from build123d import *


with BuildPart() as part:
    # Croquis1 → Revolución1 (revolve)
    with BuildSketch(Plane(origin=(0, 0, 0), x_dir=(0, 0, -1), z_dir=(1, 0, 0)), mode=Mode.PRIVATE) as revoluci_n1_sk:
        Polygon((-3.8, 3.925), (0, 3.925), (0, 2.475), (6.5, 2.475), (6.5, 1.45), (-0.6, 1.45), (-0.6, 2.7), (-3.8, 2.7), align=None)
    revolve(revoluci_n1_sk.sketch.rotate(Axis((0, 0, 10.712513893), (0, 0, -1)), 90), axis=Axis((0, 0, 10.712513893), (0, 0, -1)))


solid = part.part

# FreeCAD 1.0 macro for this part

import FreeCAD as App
import Part
import Sketcher
from FreeCAD import Vector


def add_polygon(sketch, points):
    """Adds a closed chain of lines whose ends are joined by coincident constraints."""
    first, n = sketch.GeometryCount, len(points)
    for a, b in zip(points, points[1:] + points[:1]):
        sketch.addGeometry(Part.LineSegment(App.Vector(*a, 0), App.Vector(*b, 0)), False)
    for i in range(n):
        sketch.addConstraint(Sketcher.Constraint("Coincident", first + i, 2, first + (i + 1) % n, 1))

doc = App.newDocument("Part")
body = doc.addObject("PartDesign::Body", "Body")

sketch1 = body.newObject("Sketcher::SketchObject", "Sketch")
sketch1.AttachmentSupport = (doc.getObject("YZ_Plane"), [""])
sketch1.MapMode = "FlatFace"
add_polygon(sketch1, [(3.9, 0), (3.9, 3.8), (2.7, 3.8), (2.7, 0.6), (1.4, 0.6), (1.4, -6.5), (2.5, -6.5), (2.5, 0)])
sketch1.addConstraint([
    Sketcher.Constraint("Vertical", 0),
    Sketcher.Constraint("Horizontal", 1),
    Sketcher.Constraint("Vertical", 2),
    Sketcher.Constraint("Horizontal", 3),
    Sketcher.Constraint("Vertical", 4),
    Sketcher.Constraint("Horizontal", 5),
    Sketcher.Constraint("Vertical", 6),
    Sketcher.Constraint("Horizontal", 7),
    Sketcher.Constraint("PointOnObject", 6, 2, -1),
    Sketcher.Constraint("DistanceY", 0, 1, 0, 2, 3.8),
    Sketcher.Constraint("DistanceY", 2, 2, 2, 1, 3.2),
    Sketcher.Constraint("DistanceY", 4, 2, 4, 1, 7.1),
    Sketcher.Constraint("DistanceX", 3, 2, 3, 1, 1.25),
    Sketcher.Constraint("DistanceX", 7, 1, 7, 2, 1.45),
    Sketcher.Constraint("DistanceX", -1, 1, 1, 2, 2.7),
    Sketcher.Constraint("DistanceX", 1, 2, 1, 1, 1.225),
])
revolution = body.newObject("PartDesign::Revolution", "Revolution")
revolution.Profile = sketch1
revolution.ReferenceAxis = (sketch1, ["V_Axis"])
revolution.Angle = 360

doc.recompute()
